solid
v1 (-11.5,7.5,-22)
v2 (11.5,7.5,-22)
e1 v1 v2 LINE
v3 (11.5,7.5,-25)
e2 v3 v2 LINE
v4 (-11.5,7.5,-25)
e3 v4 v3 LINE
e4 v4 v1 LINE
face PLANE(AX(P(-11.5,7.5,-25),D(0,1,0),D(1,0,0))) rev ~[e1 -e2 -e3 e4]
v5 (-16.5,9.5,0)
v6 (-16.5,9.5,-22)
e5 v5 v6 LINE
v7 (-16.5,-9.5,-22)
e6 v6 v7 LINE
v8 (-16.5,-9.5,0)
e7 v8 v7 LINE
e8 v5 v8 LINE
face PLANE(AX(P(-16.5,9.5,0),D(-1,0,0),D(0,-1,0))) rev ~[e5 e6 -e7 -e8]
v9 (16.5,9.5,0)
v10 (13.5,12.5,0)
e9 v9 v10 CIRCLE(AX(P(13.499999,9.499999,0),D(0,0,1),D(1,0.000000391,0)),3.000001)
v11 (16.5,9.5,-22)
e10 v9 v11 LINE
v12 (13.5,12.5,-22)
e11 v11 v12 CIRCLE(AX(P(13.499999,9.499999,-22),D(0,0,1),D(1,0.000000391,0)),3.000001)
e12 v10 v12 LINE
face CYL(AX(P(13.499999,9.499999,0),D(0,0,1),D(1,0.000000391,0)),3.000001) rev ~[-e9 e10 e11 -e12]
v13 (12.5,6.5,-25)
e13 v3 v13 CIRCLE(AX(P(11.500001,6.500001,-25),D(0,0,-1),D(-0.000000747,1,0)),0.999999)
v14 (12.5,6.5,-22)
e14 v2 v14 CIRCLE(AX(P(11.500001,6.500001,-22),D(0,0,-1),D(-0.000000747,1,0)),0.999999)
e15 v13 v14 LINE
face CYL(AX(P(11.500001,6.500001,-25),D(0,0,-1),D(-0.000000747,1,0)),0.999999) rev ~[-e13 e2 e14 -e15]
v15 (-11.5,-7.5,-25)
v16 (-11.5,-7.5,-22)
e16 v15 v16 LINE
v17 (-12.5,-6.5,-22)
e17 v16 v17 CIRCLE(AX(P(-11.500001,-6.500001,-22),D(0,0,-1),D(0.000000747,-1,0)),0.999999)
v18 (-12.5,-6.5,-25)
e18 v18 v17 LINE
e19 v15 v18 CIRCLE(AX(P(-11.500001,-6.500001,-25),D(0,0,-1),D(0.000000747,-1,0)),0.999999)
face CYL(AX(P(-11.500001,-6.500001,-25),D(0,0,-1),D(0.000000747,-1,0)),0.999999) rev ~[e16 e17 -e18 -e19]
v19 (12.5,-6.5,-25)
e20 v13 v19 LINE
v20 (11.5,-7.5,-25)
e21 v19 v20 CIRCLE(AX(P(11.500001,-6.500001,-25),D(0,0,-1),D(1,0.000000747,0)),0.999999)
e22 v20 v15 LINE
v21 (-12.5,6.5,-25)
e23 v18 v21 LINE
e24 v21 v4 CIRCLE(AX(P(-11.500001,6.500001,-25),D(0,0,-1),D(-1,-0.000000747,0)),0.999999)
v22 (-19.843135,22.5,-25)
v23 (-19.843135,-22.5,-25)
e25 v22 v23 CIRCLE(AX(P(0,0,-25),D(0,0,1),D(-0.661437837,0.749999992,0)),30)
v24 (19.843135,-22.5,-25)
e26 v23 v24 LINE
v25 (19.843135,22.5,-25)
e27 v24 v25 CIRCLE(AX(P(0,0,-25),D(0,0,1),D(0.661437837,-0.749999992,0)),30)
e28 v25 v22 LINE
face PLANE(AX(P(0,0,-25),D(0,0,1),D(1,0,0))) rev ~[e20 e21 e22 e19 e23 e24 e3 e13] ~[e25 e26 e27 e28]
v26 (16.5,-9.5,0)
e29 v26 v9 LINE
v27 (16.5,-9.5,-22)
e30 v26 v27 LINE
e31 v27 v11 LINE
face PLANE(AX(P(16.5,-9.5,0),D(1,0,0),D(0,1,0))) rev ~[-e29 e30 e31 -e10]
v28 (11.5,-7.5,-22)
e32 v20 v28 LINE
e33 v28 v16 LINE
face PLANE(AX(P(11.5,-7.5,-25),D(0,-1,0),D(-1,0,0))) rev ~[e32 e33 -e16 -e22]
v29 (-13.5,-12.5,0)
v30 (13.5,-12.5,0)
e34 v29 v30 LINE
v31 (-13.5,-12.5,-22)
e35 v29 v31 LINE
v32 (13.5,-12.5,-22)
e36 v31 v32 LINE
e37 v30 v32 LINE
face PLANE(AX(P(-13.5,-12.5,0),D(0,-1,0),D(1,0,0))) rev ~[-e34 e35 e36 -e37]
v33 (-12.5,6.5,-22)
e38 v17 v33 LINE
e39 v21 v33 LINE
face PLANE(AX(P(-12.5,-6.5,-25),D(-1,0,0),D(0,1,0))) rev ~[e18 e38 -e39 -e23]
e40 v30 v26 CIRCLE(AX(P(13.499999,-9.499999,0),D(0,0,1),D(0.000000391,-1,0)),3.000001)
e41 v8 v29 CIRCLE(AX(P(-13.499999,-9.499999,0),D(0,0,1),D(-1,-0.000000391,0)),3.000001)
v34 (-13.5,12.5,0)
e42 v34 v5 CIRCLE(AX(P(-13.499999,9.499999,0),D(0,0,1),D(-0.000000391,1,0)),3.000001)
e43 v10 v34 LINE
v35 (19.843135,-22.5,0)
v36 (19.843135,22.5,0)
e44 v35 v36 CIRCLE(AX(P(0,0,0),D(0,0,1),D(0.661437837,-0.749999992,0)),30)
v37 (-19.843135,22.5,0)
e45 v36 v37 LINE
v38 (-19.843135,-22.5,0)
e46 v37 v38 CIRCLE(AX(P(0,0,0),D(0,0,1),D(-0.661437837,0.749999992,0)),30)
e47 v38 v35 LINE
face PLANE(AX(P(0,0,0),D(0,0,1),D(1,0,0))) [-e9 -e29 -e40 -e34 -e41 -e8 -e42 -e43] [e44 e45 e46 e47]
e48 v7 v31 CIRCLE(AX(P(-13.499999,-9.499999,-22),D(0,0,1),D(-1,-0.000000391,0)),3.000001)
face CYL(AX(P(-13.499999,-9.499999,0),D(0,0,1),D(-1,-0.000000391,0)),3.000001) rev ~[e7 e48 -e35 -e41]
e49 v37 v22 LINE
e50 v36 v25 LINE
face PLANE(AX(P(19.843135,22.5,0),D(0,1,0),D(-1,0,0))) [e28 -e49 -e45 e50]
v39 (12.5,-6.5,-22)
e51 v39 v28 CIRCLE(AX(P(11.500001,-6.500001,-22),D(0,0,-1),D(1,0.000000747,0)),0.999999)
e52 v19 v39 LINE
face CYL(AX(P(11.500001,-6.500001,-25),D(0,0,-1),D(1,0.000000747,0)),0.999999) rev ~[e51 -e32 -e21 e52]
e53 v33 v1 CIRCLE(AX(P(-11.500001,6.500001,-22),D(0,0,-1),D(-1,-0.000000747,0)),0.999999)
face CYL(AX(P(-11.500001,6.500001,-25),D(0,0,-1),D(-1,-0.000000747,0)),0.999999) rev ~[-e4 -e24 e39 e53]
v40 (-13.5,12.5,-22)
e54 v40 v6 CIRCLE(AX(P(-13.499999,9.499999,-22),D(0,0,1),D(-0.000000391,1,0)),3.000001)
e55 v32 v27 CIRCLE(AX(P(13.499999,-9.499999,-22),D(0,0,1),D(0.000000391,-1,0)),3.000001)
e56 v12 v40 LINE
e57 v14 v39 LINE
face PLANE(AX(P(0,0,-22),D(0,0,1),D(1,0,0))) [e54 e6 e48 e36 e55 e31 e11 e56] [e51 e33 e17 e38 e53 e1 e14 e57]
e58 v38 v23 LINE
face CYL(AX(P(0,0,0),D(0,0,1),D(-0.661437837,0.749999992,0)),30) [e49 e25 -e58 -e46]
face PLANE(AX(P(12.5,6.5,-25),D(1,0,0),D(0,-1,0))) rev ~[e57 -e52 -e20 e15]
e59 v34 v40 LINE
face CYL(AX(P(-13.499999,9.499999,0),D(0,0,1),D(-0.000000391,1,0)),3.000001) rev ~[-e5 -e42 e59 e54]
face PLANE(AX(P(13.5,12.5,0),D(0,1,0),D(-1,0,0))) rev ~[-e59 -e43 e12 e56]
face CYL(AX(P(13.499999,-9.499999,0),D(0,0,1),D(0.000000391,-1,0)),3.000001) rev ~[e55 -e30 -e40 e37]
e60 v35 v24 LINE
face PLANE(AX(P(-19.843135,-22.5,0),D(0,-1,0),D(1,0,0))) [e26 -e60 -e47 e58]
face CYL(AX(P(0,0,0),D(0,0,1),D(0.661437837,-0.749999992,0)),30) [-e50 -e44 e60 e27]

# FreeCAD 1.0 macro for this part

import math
import FreeCAD as App
import Part
import Sketcher
Q = App.Units.Quantity

doc = App.newDocument("Part")
body = doc.addObject("PartDesign::Body", "Body")

# Sketch on XY plane
sketch1 = body.newObject("Sketcher::SketchObject", "Sketch")
sketch1.AttachmentSupport = (doc.getObject("XY_Plane"), [""])
sketch1.MapMode = "FlatFace"
sketch1.addGeometry([
    Part.LineSegment(App.Vector(20, 22, 0), App.Vector(-20, 22, 0)),
    Part.ArcOfCircle(Part.Circle(App.Vector(0, 0, 0), App.Vector(0, 0, 1), 30), math.radians(131), math.radians(229)),
    Part.LineSegment(App.Vector(-20, -22, 0), App.Vector(20, -22, 0)),
    Part.ArcOfCircle(Part.Circle(App.Vector(0, 0, 0), App.Vector(0, 0, 1), 30), math.radians(-49), math.radians(49)),
], False)
sketch1.addConstraint([
    Sketcher.Constraint("Coincident", 0, 2, 1, 1),
    Sketcher.Constraint("Coincident", 1, 2, 2, 1),
    Sketcher.Constraint("Coincident", 2, 2, 3, 1),
    Sketcher.Constraint("Coincident", 3, 2, 0, 1),
    Sketcher.Constraint("Horizontal", 0),
    Sketcher.Constraint("Horizontal", 2),
    Sketcher.Constraint("Coincident", 1, 3, -1, 1),
    Sketcher.Constraint("Coincident", 3, 3, -1, 1),
    Sketcher.Constraint("Equal", 1, 3),
    Sketcher.Constraint("Vertical", 0, 2, 1, 2),
    Sketcher.Constraint("Radius", 1, Q("30 mm")),
    Sketcher.Constraint("DistanceY", 1, 2, 0, 2, Q("45 mm")),
])
pad1 = body.newObject("PartDesign::Pad", "Pad")
pad1.Profile = sketch1
pad1.Length = 25
pad1.Reversed = True

# Sketch on XY plane
sketch2 = body.newObject("Sketcher::SketchObject", "Sketch001")
sketch2.AttachmentSupport = (doc.getObject("XY_Plane"), [""])
sketch2.MapMode = "FlatFace"
sketch2.addGeometry([
    Part.ArcOfCircle(Part.Circle(App.Vector(-13.5, -9.5, 0), App.Vector(0, 0, 1), 3), math.radians(-180), math.radians(-90)),  # 0
    Part.LineSegment(App.Vector(-13.5, -12.5, 0), App.Vector(13.5, -12.5, 0)),  # 1
    Part.ArcOfCircle(Part.Circle(App.Vector(13.5, -9.5, 0), App.Vector(0, 0, 1), 3), math.radians(-90), math.radians(0)),  # 2
    Part.LineSegment(App.Vector(16.5, -9.5, 0), App.Vector(16.5, 9.5, 0)),  # 3
    Part.ArcOfCircle(Part.Circle(App.Vector(13.5, 9.5, 0), App.Vector(0, 0, 1), 3), math.radians(0), math.radians(90)),  # 4
    Part.LineSegment(App.Vector(13.5, 12.5, 0), App.Vector(-13.5, 12.5, 0)),  # 5
    Part.ArcOfCircle(Part.Circle(App.Vector(-13.5, 9.5, 0), App.Vector(0, 0, 1), 3), math.radians(90), math.radians(180)),  # 6
    Part.LineSegment(App.Vector(-16.5, 9.5, 0), App.Vector(-16.5, -9.5, 0)),  # 7
], False)
sketch2.addConstraint([
    Sketcher.Constraint("Tangent", 0, 2, 1, 1),
    Sketcher.Constraint("Tangent", 1, 2, 2, 1),
    Sketcher.Constraint("Tangent", 2, 2, 3, 1),
    Sketcher.Constraint("Tangent", 3, 2, 4, 1),
    Sketcher.Constraint("Tangent", 4, 2, 5, 1),
    Sketcher.Constraint("Tangent", 5, 2, 6, 1),
    Sketcher.Constraint("Tangent", 6, 2, 7, 1),
    Sketcher.Constraint("Tangent", 7, 2, 0, 1),
    Sketcher.Constraint("Horizontal", 1),
    Sketcher.Constraint("Vertical", 3),
    Sketcher.Constraint("Horizontal", 5),
    Sketcher.Constraint("Vertical", 7),
    Sketcher.Constraint("Equal", 0, 2),
    Sketcher.Constraint("Equal", 2, 4),
    Sketcher.Constraint("Equal", 4, 6),
    Sketcher.Constraint("Symmetric", 0, 3, 4, 3, -1, 1),
    Sketcher.Constraint("Radius", 0, Q("3.000001 mm")),
    Sketcher.Constraint("DistanceX", 1, 1, 1, 2, Q("27 mm")),
    Sketcher.Constraint("DistanceY", 3, 1, 3, 2, Q("19 mm")),
])
pocket1 = body.newObject("PartDesign::Pocket", "Pocket")
pocket1.Profile = sketch2
pocket1.Length = 22

# Sketch on XY plane
sketch3 = body.newObject("Sketcher::SketchObject", "Sketch002")
sketch3.AttachmentSupport = (doc.getObject("XY_Plane"), [""])
sketch3.MapMode = "FlatFace"
sketch3.AttachmentOffset = App.Placement(App.Vector(0, 0, -25), App.Rotation())
sketch3.addGeometry([
    Part.ArcOfCircle(Part.Circle(App.Vector(-11.5, 6.5, 0), App.Vector(0, 0, 1), 1), math.radians(90), math.radians(180)),  # 0
    Part.LineSegment(App.Vector(-11.5, 7.5, 0), App.Vector(11.5, 7.5, 0)),  # 1
    Part.ArcOfCircle(Part.Circle(App.Vector(11.5, 6.5, 0), App.Vector(0, 0, 1), 1), math.radians(0), math.radians(90)),  # 2
    Part.LineSegment(App.Vector(12.5, 6.5, 0), App.Vector(12.5, -6.5, 0)),  # 3
    Part.ArcOfCircle(Part.Circle(App.Vector(11.5, -6.5, 0), App.Vector(0, 0, 1), 1), math.radians(-90), math.radians(0)),  # 4
    Part.LineSegment(App.Vector(11.5, -7.5, 0), App.Vector(-11.5, -7.5, 0)),  # 5
    Part.ArcOfCircle(Part.Circle(App.Vector(-11.5, -6.5, 0), App.Vector(0, 0, 1), 1), math.radians(180), math.radians(270)),  # 6
    Part.LineSegment(App.Vector(-12.5, -6.5, 0), App.Vector(-12.5, 6.5, 0)),  # 7
], False)
sketch3.addConstraint([
    Sketcher.Constraint("Tangent", 0, 1, 1, 1),
    Sketcher.Constraint("Tangent", 1, 2, 2, 2),
    Sketcher.Constraint("Tangent", 2, 1, 3, 1),
    Sketcher.Constraint("Tangent", 3, 2, 4, 2),
    Sketcher.Constraint("Tangent", 4, 1, 5, 1),
    Sketcher.Constraint("Tangent", 5, 2, 6, 2),
    Sketcher.Constraint("Tangent", 6, 1, 7, 1),
    Sketcher.Constraint("Tangent", 7, 2, 0, 2),
    Sketcher.Constraint("Horizontal", 1),
    Sketcher.Constraint("Vertical", 3),
    Sketcher.Constraint("Horizontal", 5),
    Sketcher.Constraint("Vertical", 7),
    Sketcher.Constraint("Equal", 0, 2),
    Sketcher.Constraint("Equal", 2, 4),
    Sketcher.Constraint("Equal", 4, 6),
    Sketcher.Constraint("Symmetric", 0, 3, 4, 3, -1, 1),
    Sketcher.Constraint("Radius", 0, Q("0.999999 mm")),
    Sketcher.Constraint("DistanceX", 1, 1, 1, 2, Q("23 mm")),
    Sketcher.Constraint("DistanceY", 3, 2, 3, 1, Q("13 mm")),
])
pocket2 = body.newObject("PartDesign::Pocket", "Pocket001")
pocket2.Profile = sketch3
pocket2.Type = "ThroughAll"
pocket2.Reversed = True

doc.recompute()
